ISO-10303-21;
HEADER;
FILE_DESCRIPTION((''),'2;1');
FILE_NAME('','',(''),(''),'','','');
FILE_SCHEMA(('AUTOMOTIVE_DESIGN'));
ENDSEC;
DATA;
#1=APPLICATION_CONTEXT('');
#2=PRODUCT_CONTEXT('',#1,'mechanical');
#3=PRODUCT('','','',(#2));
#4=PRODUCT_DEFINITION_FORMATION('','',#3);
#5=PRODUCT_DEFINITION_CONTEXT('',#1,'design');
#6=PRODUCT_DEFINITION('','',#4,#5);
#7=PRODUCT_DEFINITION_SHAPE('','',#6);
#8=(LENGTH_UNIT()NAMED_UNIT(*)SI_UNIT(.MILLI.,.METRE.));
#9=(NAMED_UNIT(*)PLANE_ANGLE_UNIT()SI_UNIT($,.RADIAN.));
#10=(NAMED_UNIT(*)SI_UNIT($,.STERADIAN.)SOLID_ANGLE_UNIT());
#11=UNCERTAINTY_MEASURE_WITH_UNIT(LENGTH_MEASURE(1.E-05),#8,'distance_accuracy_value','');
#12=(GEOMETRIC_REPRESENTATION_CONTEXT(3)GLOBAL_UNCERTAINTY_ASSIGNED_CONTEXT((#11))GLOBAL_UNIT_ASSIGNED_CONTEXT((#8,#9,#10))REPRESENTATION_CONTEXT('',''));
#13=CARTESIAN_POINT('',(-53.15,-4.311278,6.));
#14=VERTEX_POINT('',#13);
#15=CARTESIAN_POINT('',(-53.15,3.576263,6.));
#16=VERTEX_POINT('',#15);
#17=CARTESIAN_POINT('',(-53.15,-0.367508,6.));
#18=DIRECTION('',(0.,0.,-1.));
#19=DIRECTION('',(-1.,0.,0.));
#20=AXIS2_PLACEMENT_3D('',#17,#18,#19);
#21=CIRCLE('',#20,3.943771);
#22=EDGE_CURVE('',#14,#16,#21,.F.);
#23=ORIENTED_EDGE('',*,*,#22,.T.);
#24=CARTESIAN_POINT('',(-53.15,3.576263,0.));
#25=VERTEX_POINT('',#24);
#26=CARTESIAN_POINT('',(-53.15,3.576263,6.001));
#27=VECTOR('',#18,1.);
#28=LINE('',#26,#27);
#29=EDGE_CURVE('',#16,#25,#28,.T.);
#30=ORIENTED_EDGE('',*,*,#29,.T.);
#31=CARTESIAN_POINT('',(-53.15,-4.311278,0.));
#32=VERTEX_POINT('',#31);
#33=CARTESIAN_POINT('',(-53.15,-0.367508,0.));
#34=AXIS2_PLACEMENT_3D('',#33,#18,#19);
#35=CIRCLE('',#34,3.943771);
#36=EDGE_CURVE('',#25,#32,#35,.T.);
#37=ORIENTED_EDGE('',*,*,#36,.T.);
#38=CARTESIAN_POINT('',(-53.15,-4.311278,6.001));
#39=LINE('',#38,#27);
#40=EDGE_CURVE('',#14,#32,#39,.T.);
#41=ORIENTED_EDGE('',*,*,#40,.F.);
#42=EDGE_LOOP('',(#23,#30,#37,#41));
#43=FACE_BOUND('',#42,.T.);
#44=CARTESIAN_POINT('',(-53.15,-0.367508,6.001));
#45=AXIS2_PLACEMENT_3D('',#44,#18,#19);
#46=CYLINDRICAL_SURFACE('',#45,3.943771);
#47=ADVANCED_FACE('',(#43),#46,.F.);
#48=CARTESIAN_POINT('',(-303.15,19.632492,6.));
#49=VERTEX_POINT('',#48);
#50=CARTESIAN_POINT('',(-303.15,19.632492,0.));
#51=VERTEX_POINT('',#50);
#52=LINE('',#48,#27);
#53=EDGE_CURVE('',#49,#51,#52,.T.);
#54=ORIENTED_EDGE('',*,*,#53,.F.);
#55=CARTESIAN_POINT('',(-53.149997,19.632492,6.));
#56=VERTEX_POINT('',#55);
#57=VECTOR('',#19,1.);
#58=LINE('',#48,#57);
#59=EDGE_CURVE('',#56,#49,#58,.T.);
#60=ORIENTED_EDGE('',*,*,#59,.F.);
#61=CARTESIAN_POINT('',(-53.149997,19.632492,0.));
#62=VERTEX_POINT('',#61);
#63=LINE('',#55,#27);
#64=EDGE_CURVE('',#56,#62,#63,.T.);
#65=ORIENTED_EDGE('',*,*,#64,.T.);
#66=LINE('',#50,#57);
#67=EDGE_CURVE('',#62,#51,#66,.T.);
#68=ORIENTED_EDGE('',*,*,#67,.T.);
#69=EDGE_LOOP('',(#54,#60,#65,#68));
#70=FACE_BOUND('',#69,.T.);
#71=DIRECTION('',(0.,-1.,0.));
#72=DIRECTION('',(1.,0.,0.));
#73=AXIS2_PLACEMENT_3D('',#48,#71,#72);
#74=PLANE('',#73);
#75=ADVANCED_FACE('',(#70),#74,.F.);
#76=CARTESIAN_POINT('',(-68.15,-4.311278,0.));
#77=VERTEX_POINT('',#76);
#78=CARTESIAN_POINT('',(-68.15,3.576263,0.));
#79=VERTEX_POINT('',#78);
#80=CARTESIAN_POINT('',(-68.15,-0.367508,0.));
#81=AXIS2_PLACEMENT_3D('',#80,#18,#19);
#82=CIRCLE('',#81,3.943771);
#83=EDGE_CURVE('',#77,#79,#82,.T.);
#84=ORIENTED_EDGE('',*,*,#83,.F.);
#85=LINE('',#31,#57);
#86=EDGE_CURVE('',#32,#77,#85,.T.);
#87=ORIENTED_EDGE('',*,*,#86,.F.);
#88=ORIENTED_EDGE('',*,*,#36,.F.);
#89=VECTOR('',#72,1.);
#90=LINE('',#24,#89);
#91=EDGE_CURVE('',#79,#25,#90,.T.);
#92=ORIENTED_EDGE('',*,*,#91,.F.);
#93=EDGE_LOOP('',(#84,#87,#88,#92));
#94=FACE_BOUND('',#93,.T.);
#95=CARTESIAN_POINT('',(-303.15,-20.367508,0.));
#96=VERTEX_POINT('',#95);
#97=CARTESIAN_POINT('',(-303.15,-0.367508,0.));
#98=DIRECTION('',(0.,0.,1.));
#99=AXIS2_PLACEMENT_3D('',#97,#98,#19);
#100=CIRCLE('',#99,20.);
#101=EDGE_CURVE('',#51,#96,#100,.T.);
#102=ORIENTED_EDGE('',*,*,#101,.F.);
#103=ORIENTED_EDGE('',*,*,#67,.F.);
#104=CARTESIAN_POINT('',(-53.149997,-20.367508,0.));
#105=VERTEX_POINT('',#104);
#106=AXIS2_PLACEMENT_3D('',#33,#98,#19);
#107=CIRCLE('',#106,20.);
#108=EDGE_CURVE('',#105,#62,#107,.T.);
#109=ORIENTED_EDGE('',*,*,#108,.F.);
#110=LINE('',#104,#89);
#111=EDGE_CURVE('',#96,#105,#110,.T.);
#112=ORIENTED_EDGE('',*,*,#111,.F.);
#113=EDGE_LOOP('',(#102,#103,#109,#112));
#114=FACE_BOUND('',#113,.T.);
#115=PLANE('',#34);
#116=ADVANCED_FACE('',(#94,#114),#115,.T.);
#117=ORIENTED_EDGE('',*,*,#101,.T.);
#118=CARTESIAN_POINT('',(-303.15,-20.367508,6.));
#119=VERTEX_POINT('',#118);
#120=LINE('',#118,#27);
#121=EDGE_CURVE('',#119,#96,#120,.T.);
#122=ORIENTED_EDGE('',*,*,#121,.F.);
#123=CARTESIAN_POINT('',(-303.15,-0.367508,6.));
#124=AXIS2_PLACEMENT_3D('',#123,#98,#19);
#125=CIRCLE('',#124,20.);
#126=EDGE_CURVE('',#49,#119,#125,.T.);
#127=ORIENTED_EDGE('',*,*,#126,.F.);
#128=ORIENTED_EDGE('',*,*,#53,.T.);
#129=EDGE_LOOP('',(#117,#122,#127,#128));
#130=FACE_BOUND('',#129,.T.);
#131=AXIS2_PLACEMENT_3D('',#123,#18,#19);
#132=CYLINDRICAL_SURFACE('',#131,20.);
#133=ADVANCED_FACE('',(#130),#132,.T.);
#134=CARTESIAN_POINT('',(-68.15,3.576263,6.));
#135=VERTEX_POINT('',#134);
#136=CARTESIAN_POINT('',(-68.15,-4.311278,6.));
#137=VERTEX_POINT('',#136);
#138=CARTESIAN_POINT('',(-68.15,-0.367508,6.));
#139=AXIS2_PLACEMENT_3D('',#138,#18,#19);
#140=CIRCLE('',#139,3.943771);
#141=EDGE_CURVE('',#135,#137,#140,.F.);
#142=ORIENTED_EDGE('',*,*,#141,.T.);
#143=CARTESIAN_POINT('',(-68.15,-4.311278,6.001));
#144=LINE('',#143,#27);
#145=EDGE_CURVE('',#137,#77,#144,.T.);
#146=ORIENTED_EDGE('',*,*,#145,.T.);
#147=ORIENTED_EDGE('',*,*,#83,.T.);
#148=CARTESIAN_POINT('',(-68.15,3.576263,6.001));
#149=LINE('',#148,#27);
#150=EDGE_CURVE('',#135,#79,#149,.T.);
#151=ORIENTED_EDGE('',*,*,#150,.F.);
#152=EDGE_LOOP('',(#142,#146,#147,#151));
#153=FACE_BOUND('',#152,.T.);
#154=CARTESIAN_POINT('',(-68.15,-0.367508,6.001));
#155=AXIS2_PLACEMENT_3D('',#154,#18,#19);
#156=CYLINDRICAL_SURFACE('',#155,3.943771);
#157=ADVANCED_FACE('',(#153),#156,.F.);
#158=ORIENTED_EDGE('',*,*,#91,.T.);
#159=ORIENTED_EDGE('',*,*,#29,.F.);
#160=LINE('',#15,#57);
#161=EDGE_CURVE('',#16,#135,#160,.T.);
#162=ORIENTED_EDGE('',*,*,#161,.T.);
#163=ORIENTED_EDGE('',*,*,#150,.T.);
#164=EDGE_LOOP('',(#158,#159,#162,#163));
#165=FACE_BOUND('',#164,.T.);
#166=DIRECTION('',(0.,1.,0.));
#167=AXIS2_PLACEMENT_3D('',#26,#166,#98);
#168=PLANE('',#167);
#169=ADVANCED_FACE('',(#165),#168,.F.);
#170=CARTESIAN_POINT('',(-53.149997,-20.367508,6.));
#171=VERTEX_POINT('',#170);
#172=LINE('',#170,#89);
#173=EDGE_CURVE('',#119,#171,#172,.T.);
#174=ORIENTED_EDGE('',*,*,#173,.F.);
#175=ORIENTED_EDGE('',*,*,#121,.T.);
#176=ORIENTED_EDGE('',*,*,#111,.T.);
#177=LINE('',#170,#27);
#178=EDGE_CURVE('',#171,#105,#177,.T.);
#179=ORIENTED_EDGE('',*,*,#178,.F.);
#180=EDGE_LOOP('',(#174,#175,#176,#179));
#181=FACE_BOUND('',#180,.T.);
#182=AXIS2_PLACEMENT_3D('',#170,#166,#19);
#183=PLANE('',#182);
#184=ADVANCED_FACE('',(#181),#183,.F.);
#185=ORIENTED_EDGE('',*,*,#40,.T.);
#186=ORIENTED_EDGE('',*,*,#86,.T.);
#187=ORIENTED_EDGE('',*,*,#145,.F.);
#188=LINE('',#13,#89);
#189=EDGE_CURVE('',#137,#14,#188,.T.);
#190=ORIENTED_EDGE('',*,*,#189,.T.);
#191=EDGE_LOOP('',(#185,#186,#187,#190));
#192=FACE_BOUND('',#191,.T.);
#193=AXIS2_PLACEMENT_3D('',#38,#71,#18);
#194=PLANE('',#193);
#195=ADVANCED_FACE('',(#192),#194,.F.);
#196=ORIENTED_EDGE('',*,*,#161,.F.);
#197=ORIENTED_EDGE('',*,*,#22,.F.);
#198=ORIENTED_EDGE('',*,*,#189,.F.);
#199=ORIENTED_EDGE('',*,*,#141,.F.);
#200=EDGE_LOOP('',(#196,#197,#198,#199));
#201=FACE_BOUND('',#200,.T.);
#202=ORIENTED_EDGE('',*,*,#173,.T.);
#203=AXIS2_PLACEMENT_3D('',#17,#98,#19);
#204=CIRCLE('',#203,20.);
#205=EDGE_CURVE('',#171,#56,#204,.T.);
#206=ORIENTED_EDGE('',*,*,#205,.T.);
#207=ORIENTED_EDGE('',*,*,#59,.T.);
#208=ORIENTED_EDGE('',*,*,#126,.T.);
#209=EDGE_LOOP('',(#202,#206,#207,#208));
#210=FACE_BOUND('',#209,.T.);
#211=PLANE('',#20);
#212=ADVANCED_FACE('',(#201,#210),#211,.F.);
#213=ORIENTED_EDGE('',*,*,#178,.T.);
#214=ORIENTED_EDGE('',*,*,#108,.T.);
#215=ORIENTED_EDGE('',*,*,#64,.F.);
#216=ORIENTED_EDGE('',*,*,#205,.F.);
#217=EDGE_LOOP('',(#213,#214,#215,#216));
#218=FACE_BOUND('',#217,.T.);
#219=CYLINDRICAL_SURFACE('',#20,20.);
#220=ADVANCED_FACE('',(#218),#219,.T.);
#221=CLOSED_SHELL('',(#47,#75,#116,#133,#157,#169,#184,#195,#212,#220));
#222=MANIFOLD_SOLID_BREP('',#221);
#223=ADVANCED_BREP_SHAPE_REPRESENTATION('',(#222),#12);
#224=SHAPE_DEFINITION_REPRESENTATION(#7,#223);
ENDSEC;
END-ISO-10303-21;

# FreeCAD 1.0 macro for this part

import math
import FreeCAD as App
import Part
import Sketcher
Q = App.Units.Quantity

doc = App.newDocument("Part")
body = doc.addObject("PartDesign::Body", "Body")

sketch1 = body.newObject("Sketcher::SketchObject", "Sketch")
sketch1.AttachmentSupport = (doc.getObject("XY_Plane"), [""])
sketch1.MapMode = "FlatFace"
sketch1.addGeometry([
    Part.LineSegment(App.Vector(-303, -20, 0), App.Vector(-53, -20, 0)),
    Part.ArcOfCircle(Part.Circle(App.Vector(-53, 0, 0), App.Vector(0, 0, 1), 20), math.radians(-90), math.radians(90)),
    Part.LineSegment(App.Vector(-53, 20, 0), App.Vector(-303, 20, 0)),
    Part.ArcOfCircle(Part.Circle(App.Vector(-303, 0, 0), App.Vector(0, 0, 1), 20), math.radians(90), math.radians(270)),
], False)
sketch1.addConstraint([
    Sketcher.Constraint("Tangent", 0, 2, 1, 1),
    Sketcher.Constraint("Tangent", 1, 2, 2, 1),
    Sketcher.Constraint("Tangent", 2, 2, 3, 1),
    Sketcher.Constraint("Tangent", 3, 2, 0, 1),
    Sketcher.Constraint("Horizontal", 0),
    Sketcher.Constraint("Horizontal", 2),
    Sketcher.Constraint("Radius", 1, Q("20 mm")),
    Sketcher.Constraint("DistanceX", 3, 3, 1, 3, Q("250 mm")),
    Sketcher.Constraint("DistanceX", 1, 3, -1, 1, Q("53.15 mm")),
    Sketcher.Constraint("DistanceY", 1, 3, -1, 1, Q("0.367508 mm")),
])
pad1 = body.newObject("PartDesign::Pad", "Pad")
pad1.Profile = sketch1
pad1.Length = 6

sketch2 = body.newObject("Sketcher::SketchObject", "Sketch001")
sketch2.AttachmentSupport = (doc.getObject("XY_Plane"), [""])
sketch2.MapMode = "FlatFace"
sketch2.addGeometry([
    Part.LineSegment(App.Vector(-68.2, 3.6, 0), App.Vector(-53.1, 3.6, 0)),
    Part.ArcOfCircle(Part.Circle(App.Vector(-53.1, -0.4, 0), App.Vector(0, 0, 1), 3.9), math.radians(-90), math.radians(90)),
    Part.LineSegment(App.Vector(-53.1, -4.3, 0), App.Vector(-68.2, -4.3, 0)),
    Part.ArcOfCircle(Part.Circle(App.Vector(-68.2, -0.4, 0), App.Vector(0, 0, 1), 3.9), math.radians(90), math.radians(270)),
], False)
sketch2.addConstraint([
    Sketcher.Constraint("Tangent", 0, 2, 1, 2),
    Sketcher.Constraint("Tangent", 1, 1, 2, 1),
    Sketcher.Constraint("Tangent", 2, 2, 3, 2),
    Sketcher.Constraint("Tangent", 3, 1, 0, 1),
    Sketcher.Constraint("Horizontal", 0),
    Sketcher.Constraint("Horizontal", 2),
    Sketcher.Constraint("DistanceX", 0, 1, 0, 2, Q("15 mm")),
    Sketcher.Constraint("DistanceX", 1, 3, -1, 1, Q("53.15 mm")),
    Sketcher.Constraint("Radius", 1, Q("3.943771 mm")),
    Sketcher.Constraint("DistanceY", 1, 1, -1, 1, Q("4.311278 mm")),
])
pocket1 = body.newObject("PartDesign::Pocket", "Pocket")
pocket1.Profile = sketch2
pocket1.Type = "UpToFirst"
pocket1.Reversed = True

doc.recompute()
